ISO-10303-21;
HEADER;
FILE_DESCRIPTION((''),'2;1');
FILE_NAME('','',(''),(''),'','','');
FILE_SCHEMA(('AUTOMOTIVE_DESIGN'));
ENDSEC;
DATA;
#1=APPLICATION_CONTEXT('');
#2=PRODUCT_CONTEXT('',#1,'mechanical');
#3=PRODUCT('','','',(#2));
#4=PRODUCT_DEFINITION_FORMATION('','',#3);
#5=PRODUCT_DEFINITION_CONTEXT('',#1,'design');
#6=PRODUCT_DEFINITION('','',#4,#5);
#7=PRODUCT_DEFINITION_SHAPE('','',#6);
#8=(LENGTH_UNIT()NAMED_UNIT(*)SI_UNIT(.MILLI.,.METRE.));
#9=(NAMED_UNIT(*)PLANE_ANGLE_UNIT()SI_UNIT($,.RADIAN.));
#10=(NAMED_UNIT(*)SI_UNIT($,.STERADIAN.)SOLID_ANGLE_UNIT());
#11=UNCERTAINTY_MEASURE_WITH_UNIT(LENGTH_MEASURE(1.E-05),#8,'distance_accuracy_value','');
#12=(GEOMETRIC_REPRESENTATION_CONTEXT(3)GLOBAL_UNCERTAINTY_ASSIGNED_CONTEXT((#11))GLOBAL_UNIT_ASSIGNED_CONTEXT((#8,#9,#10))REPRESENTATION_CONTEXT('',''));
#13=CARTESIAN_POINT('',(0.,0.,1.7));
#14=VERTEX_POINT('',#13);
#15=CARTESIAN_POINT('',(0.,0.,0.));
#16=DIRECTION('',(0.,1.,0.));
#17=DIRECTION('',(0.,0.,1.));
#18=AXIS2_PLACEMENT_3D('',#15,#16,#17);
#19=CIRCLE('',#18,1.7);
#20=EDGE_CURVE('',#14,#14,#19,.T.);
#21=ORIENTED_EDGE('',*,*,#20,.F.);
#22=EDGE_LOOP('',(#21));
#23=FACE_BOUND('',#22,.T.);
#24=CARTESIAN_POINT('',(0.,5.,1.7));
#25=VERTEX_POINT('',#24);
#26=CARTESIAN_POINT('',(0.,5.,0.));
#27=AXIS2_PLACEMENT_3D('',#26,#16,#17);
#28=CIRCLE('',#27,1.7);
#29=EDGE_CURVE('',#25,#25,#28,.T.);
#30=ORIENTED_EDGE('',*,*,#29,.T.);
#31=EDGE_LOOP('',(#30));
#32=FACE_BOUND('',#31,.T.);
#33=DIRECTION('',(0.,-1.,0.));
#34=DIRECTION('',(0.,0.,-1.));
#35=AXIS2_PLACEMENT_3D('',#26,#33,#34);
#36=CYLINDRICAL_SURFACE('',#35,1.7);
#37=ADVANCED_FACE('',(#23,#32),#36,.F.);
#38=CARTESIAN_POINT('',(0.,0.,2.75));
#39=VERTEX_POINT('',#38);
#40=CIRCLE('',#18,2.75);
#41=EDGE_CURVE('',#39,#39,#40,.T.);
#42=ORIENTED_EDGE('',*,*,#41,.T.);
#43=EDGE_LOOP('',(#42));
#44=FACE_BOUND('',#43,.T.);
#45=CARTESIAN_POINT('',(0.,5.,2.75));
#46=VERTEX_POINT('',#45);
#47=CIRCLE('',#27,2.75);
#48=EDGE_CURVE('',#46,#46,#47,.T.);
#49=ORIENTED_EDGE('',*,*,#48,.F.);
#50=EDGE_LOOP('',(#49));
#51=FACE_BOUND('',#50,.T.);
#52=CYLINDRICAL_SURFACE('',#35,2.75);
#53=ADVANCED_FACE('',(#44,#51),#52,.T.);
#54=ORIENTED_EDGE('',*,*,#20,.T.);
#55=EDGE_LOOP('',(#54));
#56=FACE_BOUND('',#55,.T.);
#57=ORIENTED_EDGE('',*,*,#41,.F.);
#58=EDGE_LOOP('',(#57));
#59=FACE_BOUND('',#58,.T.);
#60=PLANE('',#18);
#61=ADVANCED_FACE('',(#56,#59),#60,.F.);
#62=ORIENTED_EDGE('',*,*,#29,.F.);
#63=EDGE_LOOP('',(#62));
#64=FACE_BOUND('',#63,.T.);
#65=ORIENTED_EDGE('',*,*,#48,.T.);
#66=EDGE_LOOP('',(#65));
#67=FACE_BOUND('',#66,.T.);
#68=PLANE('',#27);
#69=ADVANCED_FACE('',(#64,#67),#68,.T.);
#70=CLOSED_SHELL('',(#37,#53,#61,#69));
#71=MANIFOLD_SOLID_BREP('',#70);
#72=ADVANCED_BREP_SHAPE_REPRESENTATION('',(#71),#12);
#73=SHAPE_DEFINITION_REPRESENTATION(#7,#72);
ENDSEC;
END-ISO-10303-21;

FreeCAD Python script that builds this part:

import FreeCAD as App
import Part
import Sketcher
from FreeCAD import Vector
Q = App.Units.Quantity

doc = App.newDocument("Part")
params = doc.addObject("Spreadsheet::Sheet", "Params")
for row, (alias, value) in enumerate([
    ("sketch1_diameter", "5.5 mm"),
    ("sketch1_diameter2", "3.4 mm"),
    ("pad1_length", "5 mm"),
], start=1):
    params.set(f"A{row}", alias)
    params.set(f"B{row}", "=" + value)
    params.setAlias(f"B{row}", alias)

body = doc.addObject("PartDesign::Body", "Body")

# Sketch on XZ plane
sketch1 = doc.addObject("Sketcher::SketchObject", "Sketch")
body.addObject(sketch1)
sketch1.AttachmentSupport = (doc.XZ_Plane, [""])
sketch1.MapMode = "FlatFace"
sketch1.addGeometry(Part.Circle(Vector(0, 0, 0), Vector(0, 0, 1), 2.75), False)
sketch1.addGeometry(Part.Circle(Vector(0, 0, 0), Vector(0, 0, 1), 1.7), False)
sketch1.addConstraint(Sketcher.Constraint("Coincident", 0, 3, -1, 1))
sketch1.addConstraint(Sketcher.Constraint("Coincident", 1, 3, -1, 1))
sketch1.addConstraint(Sketcher.Constraint("Diameter", 0, Q("5.5 mm")))
sketch1.addConstraint(Sketcher.Constraint("Diameter", 1, Q("3.4 mm")))
sketch1.setExpression("Constraints[2]", "Params.sketch1_diameter")
sketch1.setExpression("Constraints[3]", "Params.sketch1_diameter2")
pad1 = doc.addObject("PartDesign::Pad", "Pad")
body.addObject(pad1)
pad1.Profile = sketch1
pad1.setExpression("Length", "Params.pad1_length")
pad1.Reversed = True

doc.recompute()
